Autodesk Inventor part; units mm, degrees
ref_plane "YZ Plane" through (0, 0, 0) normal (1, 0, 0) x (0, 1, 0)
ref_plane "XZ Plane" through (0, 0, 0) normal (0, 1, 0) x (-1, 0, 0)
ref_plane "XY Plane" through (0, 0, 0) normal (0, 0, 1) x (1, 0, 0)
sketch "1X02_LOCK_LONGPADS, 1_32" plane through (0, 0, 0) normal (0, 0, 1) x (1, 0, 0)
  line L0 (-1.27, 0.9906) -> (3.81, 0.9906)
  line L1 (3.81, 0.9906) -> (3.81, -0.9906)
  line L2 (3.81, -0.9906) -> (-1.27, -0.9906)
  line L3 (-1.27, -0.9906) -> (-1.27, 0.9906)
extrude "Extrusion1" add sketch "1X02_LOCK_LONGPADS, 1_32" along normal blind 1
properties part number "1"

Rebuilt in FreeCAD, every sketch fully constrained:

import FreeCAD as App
import Part
import Sketcher
from FreeCAD import Vector
Q = App.Units.Quantity

doc = App.newDocument("Part")
body = doc.addObject("PartDesign::Body", "Body")

sketch1 = body.newObject("Sketcher::SketchObject", "Sketch")
sketch1.AttachmentSupport = (doc.getObject("XY_Plane"), [""])
sketch1.MapMode = "FlatFace"
sketch1.addGeometry([
    Part.LineSegment(Vector(3.8, 1, 0), Vector(-1.3, 1, 0)),
    Part.LineSegment(Vector(-1.3, 1, 0), Vector(-1.3, -1, 0)),
    Part.LineSegment(Vector(-1.3, -1, 0), Vector(3.8, -1, 0)),
    Part.LineSegment(Vector(3.8, -1, 0), Vector(3.8, 1, 0)),
], False)
sketch1.addConstraint([
    Sketcher.Constraint("Coincident", 0, 2, 1, 1),
    Sketcher.Constraint("Coincident", 1, 2, 2, 1),
    Sketcher.Constraint("Coincident", 2, 2, 3, 1),
    Sketcher.Constraint("Coincident", 3, 2, 0, 1),
    Sketcher.Constraint("Horizontal", 0),
    Sketcher.Constraint("Vertical", 1),
    Sketcher.Constraint("Horizontal", 2),
    Sketcher.Constraint("Vertical", 3),
    Sketcher.Constraint("DistanceX", 0, 2, 0, 1, Q("0.2 in")),
    Sketcher.Constraint("DistanceY", 1, 2, 1, 1, Q("0.078 in")),
    Sketcher.Constraint("DistanceX", 0, 2, -1, 1, Q("0.05 in")),
    Sketcher.Constraint("DistanceY", -1, 1, 0, 2, Q("0.039 in")),
])
pad1 = body.newObject("PartDesign::Pad", "Pad")
pad1.Profile = sketch1
pad1.Length = 1

doc.recompute()
